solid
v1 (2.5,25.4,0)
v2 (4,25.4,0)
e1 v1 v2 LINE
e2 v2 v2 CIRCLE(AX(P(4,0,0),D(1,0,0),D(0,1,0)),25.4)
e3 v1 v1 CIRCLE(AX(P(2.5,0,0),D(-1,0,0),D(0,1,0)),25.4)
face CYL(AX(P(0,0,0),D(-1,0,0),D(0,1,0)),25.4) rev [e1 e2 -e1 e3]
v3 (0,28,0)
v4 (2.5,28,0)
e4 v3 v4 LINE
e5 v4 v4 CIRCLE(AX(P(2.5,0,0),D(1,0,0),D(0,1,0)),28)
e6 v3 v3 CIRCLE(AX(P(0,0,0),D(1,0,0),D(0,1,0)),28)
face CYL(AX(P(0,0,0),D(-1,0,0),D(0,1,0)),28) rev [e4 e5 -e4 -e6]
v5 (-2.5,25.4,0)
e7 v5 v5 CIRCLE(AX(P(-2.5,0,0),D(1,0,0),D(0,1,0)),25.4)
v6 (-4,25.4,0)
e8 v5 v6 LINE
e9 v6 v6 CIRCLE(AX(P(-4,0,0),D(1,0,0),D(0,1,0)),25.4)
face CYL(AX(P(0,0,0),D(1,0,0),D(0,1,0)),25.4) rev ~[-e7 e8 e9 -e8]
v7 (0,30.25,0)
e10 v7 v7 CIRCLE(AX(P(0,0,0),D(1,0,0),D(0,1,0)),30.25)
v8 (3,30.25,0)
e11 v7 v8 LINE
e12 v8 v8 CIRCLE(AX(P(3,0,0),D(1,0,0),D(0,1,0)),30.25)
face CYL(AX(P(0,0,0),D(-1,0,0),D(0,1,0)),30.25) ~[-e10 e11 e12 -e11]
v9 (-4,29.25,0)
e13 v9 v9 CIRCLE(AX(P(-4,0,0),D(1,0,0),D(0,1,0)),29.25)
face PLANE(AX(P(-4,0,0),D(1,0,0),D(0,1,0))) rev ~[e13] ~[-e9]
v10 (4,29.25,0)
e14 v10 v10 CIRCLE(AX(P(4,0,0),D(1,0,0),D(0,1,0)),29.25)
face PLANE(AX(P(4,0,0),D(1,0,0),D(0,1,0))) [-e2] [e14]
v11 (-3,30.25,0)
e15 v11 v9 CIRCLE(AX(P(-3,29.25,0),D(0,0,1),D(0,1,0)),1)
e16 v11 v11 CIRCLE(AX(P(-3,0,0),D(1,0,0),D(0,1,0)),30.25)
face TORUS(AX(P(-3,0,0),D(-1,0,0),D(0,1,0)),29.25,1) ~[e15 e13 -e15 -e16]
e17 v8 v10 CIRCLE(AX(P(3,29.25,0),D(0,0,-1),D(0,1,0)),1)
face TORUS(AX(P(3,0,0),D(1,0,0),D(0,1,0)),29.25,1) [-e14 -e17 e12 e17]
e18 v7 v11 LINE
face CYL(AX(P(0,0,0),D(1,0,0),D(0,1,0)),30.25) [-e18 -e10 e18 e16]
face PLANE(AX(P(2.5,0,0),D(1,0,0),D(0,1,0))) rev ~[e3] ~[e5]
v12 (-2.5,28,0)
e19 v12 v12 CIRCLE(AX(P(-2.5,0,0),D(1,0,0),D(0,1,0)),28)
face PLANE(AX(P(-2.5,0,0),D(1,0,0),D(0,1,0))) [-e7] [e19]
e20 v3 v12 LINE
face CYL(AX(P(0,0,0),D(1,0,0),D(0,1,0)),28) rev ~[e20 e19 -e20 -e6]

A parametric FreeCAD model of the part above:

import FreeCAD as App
import Part
import Sketcher
Q = App.Units.Quantity


def edges_at(feature, points):
    """Names of the edges that pass closest to the given points."""
    edges = feature.Shape.Edges
    near = lambda p: min(range(len(edges)), key=lambda i: edges[i].distToShape(Part.Vertex(*p))[0])
    return sorted({f"Edge{near(p) + 1}" for p in points})

doc = App.newDocument("Part")
body = doc.addObject("PartDesign::Body", "Body")

sketch1 = body.newObject("Sketcher::SketchObject", "Sketch")
sketch1.AttachmentSupport = (doc.getObject("YZ_Plane"), [""])
sketch1.MapMode = "FlatFace"
sketch1.addGeometry([
    Part.Circle(App.Vector(0, 0, 0), App.Vector(0, 0, 1), 30),
    Part.Circle(App.Vector(0, 0, 0), App.Vector(0, 0, 1), 25),
], False)
sketch1.addConstraint([
    Sketcher.Constraint("Coincident", 0, 3, -1, 1),
    Sketcher.Constraint("Coincident", 1, 3, -1, 1),
    Sketcher.Constraint("Diameter", 0, Q("60.5 mm")),
    Sketcher.Constraint("Diameter", 1, Q("50.8 mm")),
])
pad1 = body.newObject("PartDesign::Pad", "Pad")
pad1.Profile = sketch1
pad1.Length = 8
pad1.Midplane = True

sketch2 = body.newObject("Sketcher::SketchObject", "Sketch001")
sketch2.AttachmentSupport = (doc.getObject("YZ_Plane"), [""])
sketch2.MapMode = "FlatFace"
sketch2.addGeometry(Part.Circle(App.Vector(0, 0, 0), App.Vector(0, 0, 1), 28), False)
sketch2.addConstraint([
    Sketcher.Constraint("Coincident", 0, 3, -1, 1),
    Sketcher.Constraint("Diameter", 0, Q("56 mm")),
])
pocket1 = body.newObject("PartDesign::Pocket", "Pocket")
pocket1.Profile = sketch2
pocket1.Length = 5
pocket1.Midplane = True
doc.recompute()

fillet = body.newObject("PartDesign::Fillet", "Fillet")
fillet.Base = (pocket1, edges_at(pocket1, [(-4, -30.25, 0), (4, -30.25, 0)]))
fillet.Radius = 1

doc.recompute()
